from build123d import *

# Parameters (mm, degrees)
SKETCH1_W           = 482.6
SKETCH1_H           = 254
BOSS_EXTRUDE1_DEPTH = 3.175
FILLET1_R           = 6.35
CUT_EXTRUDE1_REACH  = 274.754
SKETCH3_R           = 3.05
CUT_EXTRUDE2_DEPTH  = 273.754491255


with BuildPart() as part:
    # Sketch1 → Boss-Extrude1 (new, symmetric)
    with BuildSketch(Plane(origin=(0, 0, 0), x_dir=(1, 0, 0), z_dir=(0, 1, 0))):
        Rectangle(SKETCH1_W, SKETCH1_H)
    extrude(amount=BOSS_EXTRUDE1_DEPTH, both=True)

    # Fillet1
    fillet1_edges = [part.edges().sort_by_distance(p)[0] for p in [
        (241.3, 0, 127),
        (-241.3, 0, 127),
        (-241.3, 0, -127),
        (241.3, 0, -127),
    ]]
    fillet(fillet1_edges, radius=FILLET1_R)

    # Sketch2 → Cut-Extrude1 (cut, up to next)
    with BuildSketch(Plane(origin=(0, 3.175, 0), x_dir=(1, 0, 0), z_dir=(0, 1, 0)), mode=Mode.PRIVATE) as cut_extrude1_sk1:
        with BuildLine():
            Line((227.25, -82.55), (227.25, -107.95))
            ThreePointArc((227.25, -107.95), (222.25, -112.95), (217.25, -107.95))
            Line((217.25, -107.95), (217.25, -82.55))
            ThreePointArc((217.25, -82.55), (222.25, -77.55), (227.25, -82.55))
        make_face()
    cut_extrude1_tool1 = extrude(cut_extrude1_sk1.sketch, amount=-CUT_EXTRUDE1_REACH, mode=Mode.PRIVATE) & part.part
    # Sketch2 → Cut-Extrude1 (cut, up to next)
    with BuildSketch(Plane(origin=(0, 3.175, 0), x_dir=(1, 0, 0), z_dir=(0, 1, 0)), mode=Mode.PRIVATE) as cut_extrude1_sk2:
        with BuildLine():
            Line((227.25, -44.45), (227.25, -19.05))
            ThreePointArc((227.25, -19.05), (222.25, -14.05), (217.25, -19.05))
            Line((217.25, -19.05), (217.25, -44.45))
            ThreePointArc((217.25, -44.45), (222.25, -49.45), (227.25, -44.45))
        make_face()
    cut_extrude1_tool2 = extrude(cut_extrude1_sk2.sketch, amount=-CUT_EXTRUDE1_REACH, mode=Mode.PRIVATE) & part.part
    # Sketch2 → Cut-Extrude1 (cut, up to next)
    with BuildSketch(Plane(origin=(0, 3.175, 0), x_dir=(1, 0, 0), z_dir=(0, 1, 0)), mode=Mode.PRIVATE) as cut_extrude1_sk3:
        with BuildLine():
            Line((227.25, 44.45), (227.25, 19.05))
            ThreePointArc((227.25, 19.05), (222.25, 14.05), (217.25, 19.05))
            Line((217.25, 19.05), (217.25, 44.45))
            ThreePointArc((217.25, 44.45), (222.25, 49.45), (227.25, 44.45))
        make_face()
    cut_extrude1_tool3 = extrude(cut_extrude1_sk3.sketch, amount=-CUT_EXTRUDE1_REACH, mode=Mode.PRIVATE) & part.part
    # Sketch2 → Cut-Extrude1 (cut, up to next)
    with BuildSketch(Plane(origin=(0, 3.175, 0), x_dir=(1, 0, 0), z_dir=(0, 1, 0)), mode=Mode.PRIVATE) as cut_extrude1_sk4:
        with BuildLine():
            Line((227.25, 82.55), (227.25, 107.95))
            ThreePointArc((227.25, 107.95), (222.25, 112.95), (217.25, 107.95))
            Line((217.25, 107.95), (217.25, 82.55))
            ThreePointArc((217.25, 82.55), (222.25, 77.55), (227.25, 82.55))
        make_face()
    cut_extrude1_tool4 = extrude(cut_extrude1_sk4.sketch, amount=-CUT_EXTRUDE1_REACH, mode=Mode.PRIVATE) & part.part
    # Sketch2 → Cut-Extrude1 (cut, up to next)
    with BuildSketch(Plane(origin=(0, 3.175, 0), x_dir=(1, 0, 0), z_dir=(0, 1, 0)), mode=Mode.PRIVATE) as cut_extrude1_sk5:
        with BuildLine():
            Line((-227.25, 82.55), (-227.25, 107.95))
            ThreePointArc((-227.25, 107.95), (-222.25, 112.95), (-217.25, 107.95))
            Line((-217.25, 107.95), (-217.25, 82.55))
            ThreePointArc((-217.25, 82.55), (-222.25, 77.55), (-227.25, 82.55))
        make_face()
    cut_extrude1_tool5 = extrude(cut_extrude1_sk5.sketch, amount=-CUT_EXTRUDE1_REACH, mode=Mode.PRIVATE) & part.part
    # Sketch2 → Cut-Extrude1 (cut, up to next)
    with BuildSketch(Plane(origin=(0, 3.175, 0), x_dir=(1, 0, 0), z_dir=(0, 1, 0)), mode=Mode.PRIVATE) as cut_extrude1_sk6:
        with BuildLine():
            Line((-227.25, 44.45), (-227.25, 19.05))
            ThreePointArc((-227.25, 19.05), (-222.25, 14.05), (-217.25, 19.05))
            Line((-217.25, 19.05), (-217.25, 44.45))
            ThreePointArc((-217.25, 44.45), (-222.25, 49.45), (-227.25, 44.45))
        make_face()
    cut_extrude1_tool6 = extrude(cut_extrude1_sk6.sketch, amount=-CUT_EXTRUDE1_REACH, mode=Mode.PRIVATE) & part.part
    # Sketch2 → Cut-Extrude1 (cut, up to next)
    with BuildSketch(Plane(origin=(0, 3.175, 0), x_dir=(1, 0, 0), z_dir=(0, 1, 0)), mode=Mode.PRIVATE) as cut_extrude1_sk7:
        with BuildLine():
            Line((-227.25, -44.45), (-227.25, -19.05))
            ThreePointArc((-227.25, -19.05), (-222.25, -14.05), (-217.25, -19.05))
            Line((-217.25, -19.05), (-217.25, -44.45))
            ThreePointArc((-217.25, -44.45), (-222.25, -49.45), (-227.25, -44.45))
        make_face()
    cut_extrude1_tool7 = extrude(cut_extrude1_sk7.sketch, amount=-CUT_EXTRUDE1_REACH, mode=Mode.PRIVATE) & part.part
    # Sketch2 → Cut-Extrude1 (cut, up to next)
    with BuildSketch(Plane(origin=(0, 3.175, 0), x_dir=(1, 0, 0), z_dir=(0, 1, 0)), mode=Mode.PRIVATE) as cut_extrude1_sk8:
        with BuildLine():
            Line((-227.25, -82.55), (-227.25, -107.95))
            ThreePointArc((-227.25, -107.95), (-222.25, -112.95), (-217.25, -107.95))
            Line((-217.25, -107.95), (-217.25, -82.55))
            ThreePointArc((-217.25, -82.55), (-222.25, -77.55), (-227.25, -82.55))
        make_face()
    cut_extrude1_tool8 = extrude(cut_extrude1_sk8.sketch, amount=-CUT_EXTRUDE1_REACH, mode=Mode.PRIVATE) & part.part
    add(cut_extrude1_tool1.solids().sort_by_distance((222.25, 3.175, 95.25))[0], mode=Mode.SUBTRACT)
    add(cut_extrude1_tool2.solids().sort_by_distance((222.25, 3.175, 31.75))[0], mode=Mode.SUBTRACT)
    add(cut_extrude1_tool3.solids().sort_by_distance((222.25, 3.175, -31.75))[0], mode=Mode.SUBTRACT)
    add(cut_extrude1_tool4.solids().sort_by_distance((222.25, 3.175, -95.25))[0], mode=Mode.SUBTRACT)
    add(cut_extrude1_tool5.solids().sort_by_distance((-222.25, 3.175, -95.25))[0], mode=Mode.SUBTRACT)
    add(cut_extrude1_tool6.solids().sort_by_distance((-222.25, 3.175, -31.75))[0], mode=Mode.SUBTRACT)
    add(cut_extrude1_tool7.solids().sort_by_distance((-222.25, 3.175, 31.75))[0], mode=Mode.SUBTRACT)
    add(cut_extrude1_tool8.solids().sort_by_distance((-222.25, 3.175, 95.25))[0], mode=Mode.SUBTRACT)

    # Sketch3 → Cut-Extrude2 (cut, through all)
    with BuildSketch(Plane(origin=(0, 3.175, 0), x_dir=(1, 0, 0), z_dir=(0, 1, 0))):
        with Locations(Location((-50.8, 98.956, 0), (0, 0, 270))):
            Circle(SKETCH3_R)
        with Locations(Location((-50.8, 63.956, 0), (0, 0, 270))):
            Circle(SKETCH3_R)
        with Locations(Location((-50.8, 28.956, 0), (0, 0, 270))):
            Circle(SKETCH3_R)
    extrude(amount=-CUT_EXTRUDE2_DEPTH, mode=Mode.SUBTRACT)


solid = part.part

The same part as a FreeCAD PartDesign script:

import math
import FreeCAD as App
import Part
import Sketcher
Q = App.Units.Quantity


def edges_at(feature, points):
    """Names of the edges that pass closest to the given points."""
    edges = feature.Shape.Edges
    near = lambda p: min(range(len(edges)), key=lambda i: edges[i].distToShape(Part.Vertex(*p))[0])
    return sorted({f"Edge{near(p) + 1}" for p in points})

doc = App.newDocument("Part")
body = doc.addObject("PartDesign::Body", "Body")

sketch1 = body.newObject("Sketcher::SketchObject", "Sketch")
sketch1.AttachmentSupport = (doc.getObject("XZ_Plane"), [""])
sketch1.MapMode = "FlatFace"
sketch1.addGeometry(Part.LineSegment(App.Vector(-241, -127, 0), App.Vector(-241, 127, 0)), False)
sketch1.addGeometry(Part.LineSegment(App.Vector(-241, 127, 0), App.Vector(241, 127, 0)), False)
sketch1.addGeometry(Part.LineSegment(App.Vector(241, 127, 0), App.Vector(241, -127, 0)), False)
sketch1.addGeometry(Part.LineSegment(App.Vector(241, -127, 0), App.Vector(-241, -127, 0)), False)
sketch1.addConstraint(Sketcher.Constraint("Coincident", 0, 2, 1, 1))
sketch1.addConstraint(Sketcher.Constraint("Coincident", 1, 2, 2, 1))
sketch1.addConstraint(Sketcher.Constraint("Coincident", 2, 2, 3, 1))
sketch1.addConstraint(Sketcher.Constraint("Coincident", 3, 2, 0, 1))
sketch1.addConstraint(Sketcher.Constraint("Vertical", 0))
sketch1.addConstraint(Sketcher.Constraint("Horizontal", 1))
sketch1.addConstraint(Sketcher.Constraint("Vertical", 2))
sketch1.addConstraint(Sketcher.Constraint("Horizontal", 3))
sketch1.addConstraint(Sketcher.Constraint("Symmetric", 0, 2, 2, 2, -1, 1))
sketch1.addConstraint(Sketcher.Constraint("DistanceX", 1, 1, 1, 2, Q("19 in")))
sketch1.addConstraint(Sketcher.Constraint("DistanceY", 0, 1, 0, 2, Q("10 in")))
pad1 = body.newObject("PartDesign::Pad", "Pad")
pad1.Profile = sketch1
pad1.Length = Q("0.25 in")
pad1.Midplane = True
doc.recompute()

fillet = body.newObject("PartDesign::Fillet", "Fillet")
fillet.Base = (pad1, edges_at(pad1, [
    (241.3, 0, 127),
    (-241.3, 0, 127),
    (-241.3, 0, -127),
    (241.3, 0, -127),
]))
fillet.Radius = Q("0.25 in")

sketch2 = body.newObject("Sketcher::SketchObject", "Sketch001")
sketch2.AttachmentSupport = (doc.getObject("XZ_Plane"), [""])
sketch2.MapMode = "FlatFace"
sketch2.AttachmentOffset = App.Placement(App.Vector(0, 0, -0.125 * 25.4), App.Rotation())
sketch2.addGeometry(Part.LineSegment(App.Vector(227, 108, 0), App.Vector(227, 83, 0)), False)
sketch2.addGeometry(Part.ArcOfCircle(Part.Circle(App.Vector(222, 83, 0), App.Vector(0, 0, 1), 5), math.radians(180), math.radians(360)), False)
sketch2.addGeometry(Part.LineSegment(App.Vector(217, 83, 0), App.Vector(217, 108, 0)), False)
sketch2.addGeometry(Part.ArcOfCircle(Part.Circle(App.Vector(222, 108, 0), App.Vector(0, 0, 1), 5), math.radians(0), math.radians(180)), False)
sketch2.addConstraint(Sketcher.Constraint("Tangent", 0, 2, 1, 2))
sketch2.addConstraint(Sketcher.Constraint("Tangent", 1, 1, 2, 1))
sketch2.addConstraint(Sketcher.Constraint("Tangent", 2, 2, 3, 2))
sketch2.addConstraint(Sketcher.Constraint("Tangent", 3, 1, 0, 1))
sketch2.addConstraint(Sketcher.Constraint("Vertical", 0))
sketch2.addConstraint(Sketcher.Constraint("Vertical", 2))
sketch2.addConstraint(Sketcher.Constraint("DistanceY", 0, 2, 0, 1, Q("1 in")))
sketch2.addConstraint(Sketcher.Constraint("DistanceX", -1, 1, 1, 3, Q("8.75 in")))
sketch2.addConstraint(Sketcher.Constraint("DistanceY", -1, 1, 1, 3, Q("3.25 in")))
sketch2.addConstraint(Sketcher.Constraint("Radius", 1, Q("5 mm")))
pocket1 = body.newObject("PartDesign::Pocket", "Pocket")
pocket1.Profile = sketch2
pocket1.Type = "UpToFirst"
pocket1.Reversed = True

sketch3 = body.newObject("Sketcher::SketchObject", "Sketch002")
sketch3.AttachmentSupport = (doc.getObject("XZ_Plane"), [""])
sketch3.MapMode = "FlatFace"
sketch3.AttachmentOffset = App.Placement(App.Vector(0, 0, -0.125 * 25.4), App.Rotation())
sketch3.addGeometry(Part.LineSegment(App.Vector(227, 44, 0), App.Vector(227, 19, 0)), False)
sketch3.addGeometry(Part.ArcOfCircle(Part.Circle(App.Vector(222, 19, 0), App.Vector(0, 0, 1), 5), math.radians(180), math.radians(360)), False)
sketch3.addGeometry(Part.LineSegment(App.Vector(217, 19, 0), App.Vector(217, 44, 0)), False)
sketch3.addGeometry(Part.ArcOfCircle(Part.Circle(App.Vector(222, 44, 0), App.Vector(0, 0, 1), 5), math.radians(0), math.radians(180)), False)
sketch3.addConstraint(Sketcher.Constraint("Tangent", 0, 2, 1, 2))
sketch3.addConstraint(Sketcher.Constraint("Tangent", 1, 1, 2, 1))
sketch3.addConstraint(Sketcher.Constraint("Tangent", 2, 2, 3, 2))
sketch3.addConstraint(Sketcher.Constraint("Tangent", 3, 1, 0, 1))
sketch3.addConstraint(Sketcher.Constraint("Vertical", 0))
sketch3.addConstraint(Sketcher.Constraint("Vertical", 2))
sketch3.addConstraint(Sketcher.Constraint("DistanceY", 0, 2, 0, 1, Q("1 in")))
sketch3.addConstraint(Sketcher.Constraint("DistanceX", -1, 1, 1, 3, Q("8.75 in")))
sketch3.addConstraint(Sketcher.Constraint("DistanceY", -1, 1, 1, 3, Q("0.75 in")))
sketch3.addConstraint(Sketcher.Constraint("Radius", 1, Q("5 mm")))
pocket2 = body.newObject("PartDesign::Pocket", "Pocket001")
pocket2.Profile = sketch3
pocket2.Type = "UpToFirst"
pocket2.Reversed = True

sketch4 = body.newObject("Sketcher::SketchObject", "Sketch003")
sketch4.AttachmentSupport = (doc.getObject("XZ_Plane"), [""])
sketch4.MapMode = "FlatFace"
sketch4.AttachmentOffset = App.Placement(App.Vector(0, 0, -0.125 * 25.4), App.Rotation())
sketch4.addGeometry(Part.LineSegment(App.Vector(227, -19, 0), App.Vector(227, -44, 0)), False)
sketch4.addGeometry(Part.ArcOfCircle(Part.Circle(App.Vector(222, -44, 0), App.Vector(0, 0, 1), 5), math.radians(180), math.radians(360)), False)
sketch4.addGeometry(Part.LineSegment(App.Vector(217, -44, 0), App.Vector(217, -19, 0)), False)
sketch4.addGeometry(Part.ArcOfCircle(Part.Circle(App.Vector(222, -19, 0), App.Vector(0, 0, 1), 5), math.radians(0), math.radians(180)), False)
sketch4.addConstraint(Sketcher.Constraint("Tangent", 0, 2, 1, 2))
sketch4.addConstraint(Sketcher.Constraint("Tangent", 1, 1, 2, 1))
sketch4.addConstraint(Sketcher.Constraint("Tangent", 2, 2, 3, 2))
sketch4.addConstraint(Sketcher.Constraint("Tangent", 3, 1, 0, 1))
sketch4.addConstraint(Sketcher.Constraint("Vertical", 0))
sketch4.addConstraint(Sketcher.Constraint("Vertical", 2))
sketch4.addConstraint(Sketcher.Constraint("DistanceY", 0, 2, 0, 1, Q("1 in")))
sketch4.addConstraint(Sketcher.Constraint("DistanceX", -1, 1, 1, 3, Q("8.75 in")))
sketch4.addConstraint(Sketcher.Constraint("DistanceY", 1, 3, -1, 1, Q("1.75 in")))
sketch4.addConstraint(Sketcher.Constraint("Radius", 1, Q("5 mm")))
pocket3 = body.newObject("PartDesign::Pocket", "Pocket002")
pocket3.Profile = sketch4
pocket3.Type = "UpToFirst"
pocket3.Reversed = True

sketch5 = body.newObject("Sketcher::SketchObject", "Sketch004")
sketch5.AttachmentSupport = (doc.getObject("XZ_Plane"), [""])
sketch5.MapMode = "FlatFace"
sketch5.AttachmentOffset = App.Placement(App.Vector(0, 0, -0.125 * 25.4), App.Rotation())
sketch5.addGeometry(Part.LineSegment(App.Vector(227, -83, 0), App.Vector(227, -108, 0)), False)
sketch5.addGeometry(Part.ArcOfCircle(Part.Circle(App.Vector(222, -108, 0), App.Vector(0, 0, 1), 5), math.radians(180), math.radians(360)), False)
sketch5.addGeometry(Part.LineSegment(App.Vector(217, -108, 0), App.Vector(217, -83, 0)), False)
sketch5.addGeometry(Part.ArcOfCircle(Part.Circle(App.Vector(222, -83, 0), App.Vector(0, 0, 1), 5), math.radians(0), math.radians(180)), False)
sketch5.addConstraint(Sketcher.Constraint("Tangent", 0, 2, 1, 2))
sketch5.addConstraint(Sketcher.Constraint("Tangent", 1, 1, 2, 1))
sketch5.addConstraint(Sketcher.Constraint("Tangent", 2, 2, 3, 2))
sketch5.addConstraint(Sketcher.Constraint("Tangent", 3, 1, 0, 1))
sketch5.addConstraint(Sketcher.Constraint("Vertical", 0))
sketch5.addConstraint(Sketcher.Constraint("Vertical", 2))
sketch5.addConstraint(Sketcher.Constraint("DistanceY", 0, 2, 0, 1, Q("1 in")))
sketch5.addConstraint(Sketcher.Constraint("DistanceX", -1, 1, 1, 3, Q("8.75 in")))
sketch5.addConstraint(Sketcher.Constraint("DistanceY", 1, 3, -1, 1, Q("4.25 in")))
sketch5.addConstraint(Sketcher.Constraint("Radius", 1, Q("5 mm")))
pocket4 = body.newObject("PartDesign::Pocket", "Pocket003")
pocket4.Profile = sketch5
pocket4.Type = "UpToFirst"
pocket4.Reversed = True

sketch6 = body.newObject("Sketcher::SketchObject", "Sketch005")
sketch6.AttachmentSupport = (doc.getObject("XZ_Plane"), [""])
sketch6.MapMode = "FlatFace"
sketch6.AttachmentOffset = App.Placement(App.Vector(0, 0, -0.125 * 25.4), App.Rotation())
sketch6.addGeometry(Part.LineSegment(App.Vector(-227, -108, 0), App.Vector(-227, -83, 0)), False)
sketch6.addGeometry(Part.ArcOfCircle(Part.Circle(App.Vector(-222, -83, 0), App.Vector(0, 0, 1), 5), math.radians(0), math.radians(180)), False)
sketch6.addGeometry(Part.LineSegment(App.Vector(-217, -83, 0), App.Vector(-217, -108, 0)), False)
sketch6.addGeometry(Part.ArcOfCircle(Part.Circle(App.Vector(-222, -108, 0), App.Vector(0, 0, 1), 5), math.radians(180), math.radians(360)), False)
sketch6.addConstraint(Sketcher.Constraint("Tangent", 0, 2, 1, 2))
sketch6.addConstraint(Sketcher.Constraint("Tangent", 1, 1, 2, 1))
sketch6.addConstraint(Sketcher.Constraint("Tangent", 2, 2, 3, 2))
sketch6.addConstraint(Sketcher.Constraint("Tangent", 3, 1, 0, 1))
sketch6.addConstraint(Sketcher.Constraint("Vertical", 0))
sketch6.addConstraint(Sketcher.Constraint("Vertical", 2))
sketch6.addConstraint(Sketcher.Constraint("DistanceY", 0, 1, 0, 2, Q("1 in")))
sketch6.addConstraint(Sketcher.Constraint("DistanceX", 1, 3, -1, 1, Q("8.75 in")))
sketch6.addConstraint(Sketcher.Constraint("DistanceY", 1, 3, -1, 1, Q("3.25 in")))
sketch6.addConstraint(Sketcher.Constraint("Radius", 1, Q("5 mm")))
pocket5 = body.newObject("PartDesign::Pocket", "Pocket004")
pocket5.Profile = sketch6
pocket5.Type = "UpToFirst"
pocket5.Reversed = True

sketch7 = body.newObject("Sketcher::SketchObject", "Sketch006")
sketch7.AttachmentSupport = (doc.getObject("XZ_Plane"), [""])
sketch7.MapMode = "FlatFace"
sketch7.AttachmentOffset = App.Placement(App.Vector(0, 0, -0.125 * 25.4), App.Rotation())
sketch7.addGeometry(Part.LineSegment(App.Vector(-227, -44, 0), App.Vector(-227, -19, 0)), False)
sketch7.addGeometry(Part.ArcOfCircle(Part.Circle(App.Vector(-222, -19, 0), App.Vector(0, 0, 1), 5), math.radians(0), math.radians(180)), False)
sketch7.addGeometry(Part.LineSegment(App.Vector(-217, -19, 0), App.Vector(-217, -44, 0)), False)
sketch7.addGeometry(Part.ArcOfCircle(Part.Circle(App.Vector(-222, -44, 0), App.Vector(0, 0, 1), 5), math.radians(180), math.radians(360)), False)
sketch7.addConstraint(Sketcher.Constraint("Tangent", 0, 2, 1, 2))
sketch7.addConstraint(Sketcher.Constraint("Tangent", 1, 1, 2, 1))
sketch7.addConstraint(Sketcher.Constraint("Tangent", 2, 2, 3, 2))
sketch7.addConstraint(Sketcher.Constraint("Tangent", 3, 1, 0, 1))
sketch7.addConstraint(Sketcher.Constraint("Vertical", 0))
sketch7.addConstraint(Sketcher.Constraint("Vertical", 2))
sketch7.addConstraint(Sketcher.Constraint("DistanceY", 0, 1, 0, 2, Q("1 in")))
sketch7.addConstraint(Sketcher.Constraint("DistanceX", 1, 3, -1, 1, Q("8.75 in")))
sketch7.addConstraint(Sketcher.Constraint("DistanceY", 1, 3, -1, 1, Q("0.75 in")))
sketch7.addConstraint(Sketcher.Constraint("Radius", 1, Q("5 mm")))
pocket6 = body.newObject("PartDesign::Pocket", "Pocket005")
pocket6.Profile = sketch7
pocket6.Type = "UpToFirst"
pocket6.Reversed = True

sketch8 = body.newObject("Sketcher::SketchObject", "Sketch007")
sketch8.AttachmentSupport = (doc.getObject("XZ_Plane"), [""])
sketch8.MapMode = "FlatFace"
sketch8.AttachmentOffset = App.Placement(App.Vector(0, 0, -0.125 * 25.4), App.Rotation())
sketch8.addGeometry(Part.LineSegment(App.Vector(-227, 19, 0), App.Vector(-227, 44, 0)), False)
sketch8.addGeometry(Part.ArcOfCircle(Part.Circle(App.Vector(-222, 44, 0), App.Vector(0, 0, 1), 5), math.radians(0), math.radians(180)), False)
sketch8.addGeometry(Part.LineSegment(App.Vector(-217, 44, 0), App.Vector(-217, 19, 0)), False)
sketch8.addGeometry(Part.ArcOfCircle(Part.Circle(App.Vector(-222, 19, 0), App.Vector(0, 0, 1), 5), math.radians(180), math.radians(360)), False)
sketch8.addConstraint(Sketcher.Constraint("Tangent", 0, 2, 1, 2))
sketch8.addConstraint(Sketcher.Constraint("Tangent", 1, 1, 2, 1))
sketch8.addConstraint(Sketcher.Constraint("Tangent", 2, 2, 3, 2))
sketch8.addConstraint(Sketcher.Constraint("Tangent", 3, 1, 0, 1))
sketch8.addConstraint(Sketcher.Constraint("Vertical", 0))
sketch8.addConstraint(Sketcher.Constraint("Vertical", 2))
sketch8.addConstraint(Sketcher.Constraint("DistanceY", 0, 1, 0, 2, Q("1 in")))
sketch8.addConstraint(Sketcher.Constraint("DistanceX", 1, 3, -1, 1, Q("8.75 in")))
sketch8.addConstraint(Sketcher.Constraint("DistanceY", -1, 1, 1, 3, Q("1.75 in")))
sketch8.addConstraint(Sketcher.Constraint("Radius", 1, Q("5 mm")))
pocket7 = body.newObject("PartDesign::Pocket", "Pocket006")
pocket7.Profile = sketch8
pocket7.Type = "UpToFirst"
pocket7.Reversed = True

sketch9 = body.newObject("Sketcher::SketchObject", "Sketch008")
sketch9.AttachmentSupport = (doc.getObject("XZ_Plane"), [""])
sketch9.MapMode = "FlatFace"
sketch9.AttachmentOffset = App.Placement(App.Vector(0, 0, -0.125 * 25.4), App.Rotation())
sketch9.addGeometry(Part.LineSegment(App.Vector(-227, 83, 0), App.Vector(-227, 108, 0)), False)
sketch9.addGeometry(Part.ArcOfCircle(Part.Circle(App.Vector(-222, 108, 0), App.Vector(0, 0, 1), 5), math.radians(0), math.radians(180)), False)
sketch9.addGeometry(Part.LineSegment(App.Vector(-217, 108, 0), App.Vector(-217, 83, 0)), False)
sketch9.addGeometry(Part.ArcOfCircle(Part.Circle(App.Vector(-222, 83, 0), App.Vector(0, 0, 1), 5), math.radians(180), math.radians(360)), False)
sketch9.addConstraint(Sketcher.Constraint("Tangent", 0, 2, 1, 2))
sketch9.addConstraint(Sketcher.Constraint("Tangent", 1, 1, 2, 1))
sketch9.addConstraint(Sketcher.Constraint("Tangent", 2, 2, 3, 2))
sketch9.addConstraint(Sketcher.Constraint("Tangent", 3, 1, 0, 1))
sketch9.addConstraint(Sketcher.Constraint("Vertical", 0))
sketch9.addConstraint(Sketcher.Constraint("Vertical", 2))
sketch9.addConstraint(Sketcher.Constraint("DistanceY", 0, 1, 0, 2, Q("1 in")))
sketch9.addConstraint(Sketcher.Constraint("DistanceX", 1, 3, -1, 1, Q("8.75 in")))
sketch9.addConstraint(Sketcher.Constraint("DistanceY", -1, 1, 1, 3, Q("4.25 in")))
sketch9.addConstraint(Sketcher.Constraint("Radius", 1, Q("5 mm")))
pocket8 = body.newObject("PartDesign::Pocket", "Pocket007")
pocket8.Profile = sketch9
pocket8.Type = "UpToFirst"
pocket8.Reversed = True

sketch10 = body.newObject("Sketcher::SketchObject", "Sketch009")
sketch10.AttachmentSupport = (doc.getObject("XZ_Plane"), [""])
sketch10.MapMode = "FlatFace"
sketch10.AttachmentOffset = App.Placement(App.Vector(0, 0, -0.125 * 25.4), App.Rotation())
sketch10.addGeometry(Part.Circle(App.Vector(-50.8, -99, 0), App.Vector(0, 0, 1), 3), False)
sketch10.addGeometry(Part.Circle(App.Vector(-50.8, -64, 0), App.Vector(0, 0, 1), 3), False)
sketch10.addGeometry(Part.Circle(App.Vector(-50.8, -29, 0), App.Vector(0, 0, 1), 3), False)
sketch10.addConstraint(Sketcher.Constraint("Equal", 0, 1))
sketch10.addConstraint(Sketcher.Constraint("Equal", 1, 2))
sketch10.addConstraint(Sketcher.Constraint("Vertical", 0, 3, 1, 3))
sketch10.addConstraint(Sketcher.Constraint("Vertical", 1, 3, 2, 3))
sketch10.addConstraint(Sketcher.Constraint("DistanceX", 0, 3, -1, 1, Q("2 in")))
sketch10.addConstraint(Sketcher.Constraint("Diameter", 0, Q("6.1 mm")))
sketch10.addConstraint(Sketcher.Constraint("DistanceY", 2, 3, -1, 1, Q("1.14 in")))
sketch10.addConstraint(Sketcher.Constraint("DistanceY", 0, 3, -1, 1, Q("98.956 mm")))
sketch10.addConstraint(Sketcher.Constraint("DistanceY", 1, 3, -1, 1, Q("63.956 mm")))
pocket9 = body.newObject("PartDesign::Pocket", "Pocket008")
pocket9.Profile = sketch10
pocket9.Type = "ThroughAll"
pocket9.Reversed = True

doc.recompute()
